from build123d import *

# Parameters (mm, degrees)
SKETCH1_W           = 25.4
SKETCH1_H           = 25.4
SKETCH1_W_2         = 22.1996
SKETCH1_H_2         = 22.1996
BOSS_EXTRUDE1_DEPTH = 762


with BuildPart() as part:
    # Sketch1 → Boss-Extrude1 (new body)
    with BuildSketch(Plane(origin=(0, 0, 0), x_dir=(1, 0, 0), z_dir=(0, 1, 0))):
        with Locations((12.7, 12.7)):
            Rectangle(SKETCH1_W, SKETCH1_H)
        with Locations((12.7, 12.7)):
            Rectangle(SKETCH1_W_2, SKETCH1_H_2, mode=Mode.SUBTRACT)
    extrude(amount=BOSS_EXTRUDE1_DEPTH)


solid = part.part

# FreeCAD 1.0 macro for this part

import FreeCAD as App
import Part
import Sketcher
Q = App.Units.Quantity

doc = App.newDocument("Part")
body = doc.addObject("PartDesign::Body", "Body")

sketch1 = body.newObject("Sketcher::SketchObject", "Sketch")
sketch1.AttachmentSupport = (doc.getObject("XZ_Plane"), [""])
sketch1.MapMode = "FlatFace"
sketch1.addGeometry(Part.LineSegment(App.Vector(0, -25.4, 0), App.Vector(0, 0, 0)), False)
sketch1.addGeometry(Part.LineSegment(App.Vector(0, 0, 0), App.Vector(25.4, 0, 0)), False)
sketch1.addGeometry(Part.LineSegment(App.Vector(25.4, 0, 0), App.Vector(25.4, -25.4, 0)), False)
sketch1.addGeometry(Part.LineSegment(App.Vector(25.4, -25.4, 0), App.Vector(0, -25.4, 0)), False)
sketch1.addGeometry(Part.LineSegment(App.Vector(23.7998, -1.6002, 0), App.Vector(1.6002, -1.6002, 0)), False)
sketch1.addGeometry(Part.LineSegment(App.Vector(1.6002, -1.6002, 0), App.Vector(1.6002, -23.7998, 0)), False)
sketch1.addGeometry(Part.LineSegment(App.Vector(1.6002, -23.7998, 0), App.Vector(23.7998, -23.7998, 0)), False)
sketch1.addGeometry(Part.LineSegment(App.Vector(23.7998, -23.7998, 0), App.Vector(23.7998, -1.6002, 0)), False)
sketch1.addConstraint(Sketcher.Constraint("Coincident", 0, 2, 1, 1))
sketch1.addConstraint(Sketcher.Constraint("Coincident", 1, 2, 2, 1))
sketch1.addConstraint(Sketcher.Constraint("Coincident", 2, 2, 3, 1))
sketch1.addConstraint(Sketcher.Constraint("Coincident", 3, 2, 0, 1))
sketch1.addConstraint(Sketcher.Constraint("Coincident", 4, 2, 5, 1))
sketch1.addConstraint(Sketcher.Constraint("Coincident", 5, 2, 6, 1))
sketch1.addConstraint(Sketcher.Constraint("Coincident", 6, 2, 7, 1))
sketch1.addConstraint(Sketcher.Constraint("Coincident", 7, 2, 4, 1))
sketch1.addConstraint(Sketcher.Constraint("Vertical", 0))
sketch1.addConstraint(Sketcher.Constraint("Horizontal", 1))
sketch1.addConstraint(Sketcher.Constraint("Vertical", 2))
sketch1.addConstraint(Sketcher.Constraint("Horizontal", 3))
sketch1.addConstraint(Sketcher.Constraint("Horizontal", 4))
sketch1.addConstraint(Sketcher.Constraint("Vertical", 5))
sketch1.addConstraint(Sketcher.Constraint("Horizontal", 6))
sketch1.addConstraint(Sketcher.Constraint("Vertical", 7))
sketch1.addConstraint(Sketcher.Constraint("Coincident", 0, 2, -1, 1))
sketch1.addConstraint(Sketcher.Constraint("Equal", 3, 0))
sketch1.addConstraint(Sketcher.Constraint("Equal", 6, 5))
sketch1.addConstraint(Sketcher.Constraint("DistanceX", 1, 1, 1, 2, Q("1 in")))
sketch1.addConstraint(Sketcher.Constraint("DistanceX", 4, 2, 4, 1, Q("0.874 in")))
sketch1.addConstraint(Sketcher.Constraint("DistanceX", -1, 1, 4, 2, Q("0.063 in")))
sketch1.addConstraint(Sketcher.Constraint("DistanceY", 4, 2, -1, 1, Q("0.063 in")))
pad1 = body.newObject("PartDesign::Pad", "Pad")
pad1.Profile = sketch1
pad1.Length = Q("30 in")
pad1.Reversed = True

doc.recompute()
